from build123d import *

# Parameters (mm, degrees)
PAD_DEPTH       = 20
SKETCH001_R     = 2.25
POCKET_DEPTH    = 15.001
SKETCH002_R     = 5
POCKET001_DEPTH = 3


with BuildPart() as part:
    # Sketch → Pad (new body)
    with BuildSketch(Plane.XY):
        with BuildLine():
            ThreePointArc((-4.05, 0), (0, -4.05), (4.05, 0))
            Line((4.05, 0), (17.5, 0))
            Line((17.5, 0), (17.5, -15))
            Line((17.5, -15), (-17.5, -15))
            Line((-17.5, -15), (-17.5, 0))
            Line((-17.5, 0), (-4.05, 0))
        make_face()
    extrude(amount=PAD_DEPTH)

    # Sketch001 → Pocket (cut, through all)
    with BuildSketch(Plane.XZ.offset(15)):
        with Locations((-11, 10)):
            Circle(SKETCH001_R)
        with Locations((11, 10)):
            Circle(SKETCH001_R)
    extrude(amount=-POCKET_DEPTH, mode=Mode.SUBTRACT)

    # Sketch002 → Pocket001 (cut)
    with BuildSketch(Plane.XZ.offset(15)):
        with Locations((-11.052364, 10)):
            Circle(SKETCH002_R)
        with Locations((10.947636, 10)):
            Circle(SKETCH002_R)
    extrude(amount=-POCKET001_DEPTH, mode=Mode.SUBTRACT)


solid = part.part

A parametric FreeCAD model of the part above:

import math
import FreeCAD as App
import Part
import Sketcher
Q = App.Units.Quantity

doc = App.newDocument("Part")
body = doc.addObject("PartDesign::Body", "Body")

# Sketch on XY plane
sketch1 = body.newObject("Sketcher::SketchObject", "Sketch")
sketch1.AttachmentSupport = (doc.getObject("XY_Plane"), [""])
sketch1.MapMode = "FlatFace"
sketch1.addGeometry([
    Part.ArcOfCircle(Part.Circle(App.Vector(0, 0, 0), App.Vector(0, 0, 1), 4), math.radians(180), math.radians(360)),  # 0
    Part.LineSegment(App.Vector(-4, 0, 0), App.Vector(-17.5, 0, 0)),  # 1
    Part.LineSegment(App.Vector(-17.5, 0, 0), App.Vector(-17.5, -15, 0)),  # 2
    Part.LineSegment(App.Vector(-17.5, -15, 0), App.Vector(17.5, -15, 0)),  # 3
    Part.LineSegment(App.Vector(17.5, -15, 0), App.Vector(17.5, 0, 0)),  # 4
    Part.LineSegment(App.Vector(17.5, 0, 0), App.Vector(4, 0, 0)),  # 5
], False)
sketch1.addConstraint([
    Sketcher.Constraint("Coincident", 0, 1, 1, 1),
    Sketcher.Constraint("Coincident", 1, 2, 2, 1),
    Sketcher.Constraint("Coincident", 2, 2, 3, 1),
    Sketcher.Constraint("Coincident", 3, 2, 4, 1),
    Sketcher.Constraint("Coincident", 4, 2, 5, 1),
    Sketcher.Constraint("Coincident", 5, 2, 0, 2),
    Sketcher.Constraint("Horizontal", 1),
    Sketcher.Constraint("Vertical", 2),
    Sketcher.Constraint("Horizontal", 3),
    Sketcher.Constraint("Vertical", 4),
    Sketcher.Constraint("Horizontal", 5),
    Sketcher.Constraint("Coincident", 0, 3, -1, 1),
    Sketcher.Constraint("Symmetric", 1, 2, 4, 2, -1, 1),
    Sketcher.Constraint("PointOnObject", 0, 1, -1),
    Sketcher.Constraint("DistanceX", 3, 1, 3, 2, Q("35 mm")),
    Sketcher.Constraint("DistanceY", 2, 2, 2, 1, Q("15 mm")),
    Sketcher.Constraint("Radius", 0, Q("4.05 mm")),
])
pad1 = body.newObject("PartDesign::Pad", "Pad")
pad1.Profile = sketch1
pad1.Length = 20

# Sketch on XZ plane
sketch2 = body.newObject("Sketcher::SketchObject", "Sketch001")
sketch2.AttachmentSupport = (doc.getObject("XZ_Plane"), [""])
sketch2.MapMode = "FlatFace"
sketch2.AttachmentOffset = App.Placement(App.Vector(0, 0, 15), App.Rotation())
sketch2.addGeometry([
    Part.Circle(App.Vector(-11, 10, 0), App.Vector(0, 0, 1), 2.2),
    Part.Circle(App.Vector(11, 10, 0), App.Vector(0, 0, 1), 2.2),
], False)
sketch2.addConstraint([
    Sketcher.Constraint("Equal", 0, 1),
    Sketcher.Constraint("Symmetric", 0, 3, 1, 3, -2),
    Sketcher.Constraint("Diameter", 0, Q("4.5 mm")),
    Sketcher.Constraint("DistanceX", 0, 3, -1, 1, Q("11 mm")),
    Sketcher.Constraint("DistanceY", -1, 1, 0, 3, Q("10 mm")),
])
pocket1 = body.newObject("PartDesign::Pocket", "Pocket")
pocket1.Profile = sketch2
pocket1.Type = "ThroughAll"

# Sketch on XZ plane
sketch3 = body.newObject("Sketcher::SketchObject", "Sketch002")
sketch3.AttachmentSupport = (doc.getObject("XZ_Plane"), [""])
sketch3.MapMode = "FlatFace"
sketch3.AttachmentOffset = App.Placement(App.Vector(0, 0, 15), App.Rotation())
sketch3.addGeometry([
    Part.Circle(App.Vector(-11, 10, 0), App.Vector(0, 0, 1), 5),
    Part.Circle(App.Vector(11, 10, 0), App.Vector(0, 0, 1), 5),
], False)
sketch3.addConstraint([
    Sketcher.Constraint("Equal", 0, 1),
    Sketcher.Constraint("Horizontal", 0, 3, 1, 3),
    Sketcher.Constraint("Diameter", 0, Q("10 mm")),
    Sketcher.Constraint("DistanceY", -1, 1, 0, 3, Q("10 mm")),
    Sketcher.Constraint("DistanceX", 0, 3, 1, 3, Q("22 mm")),
    Sketcher.Constraint("DistanceX", 0, 3, -1, 1, Q("11.052364 mm")),
])
pocket2 = body.newObject("PartDesign::Pocket", "Pocket001")
pocket2.Profile = sketch3
pocket2.Length = 3

doc.recompute()
